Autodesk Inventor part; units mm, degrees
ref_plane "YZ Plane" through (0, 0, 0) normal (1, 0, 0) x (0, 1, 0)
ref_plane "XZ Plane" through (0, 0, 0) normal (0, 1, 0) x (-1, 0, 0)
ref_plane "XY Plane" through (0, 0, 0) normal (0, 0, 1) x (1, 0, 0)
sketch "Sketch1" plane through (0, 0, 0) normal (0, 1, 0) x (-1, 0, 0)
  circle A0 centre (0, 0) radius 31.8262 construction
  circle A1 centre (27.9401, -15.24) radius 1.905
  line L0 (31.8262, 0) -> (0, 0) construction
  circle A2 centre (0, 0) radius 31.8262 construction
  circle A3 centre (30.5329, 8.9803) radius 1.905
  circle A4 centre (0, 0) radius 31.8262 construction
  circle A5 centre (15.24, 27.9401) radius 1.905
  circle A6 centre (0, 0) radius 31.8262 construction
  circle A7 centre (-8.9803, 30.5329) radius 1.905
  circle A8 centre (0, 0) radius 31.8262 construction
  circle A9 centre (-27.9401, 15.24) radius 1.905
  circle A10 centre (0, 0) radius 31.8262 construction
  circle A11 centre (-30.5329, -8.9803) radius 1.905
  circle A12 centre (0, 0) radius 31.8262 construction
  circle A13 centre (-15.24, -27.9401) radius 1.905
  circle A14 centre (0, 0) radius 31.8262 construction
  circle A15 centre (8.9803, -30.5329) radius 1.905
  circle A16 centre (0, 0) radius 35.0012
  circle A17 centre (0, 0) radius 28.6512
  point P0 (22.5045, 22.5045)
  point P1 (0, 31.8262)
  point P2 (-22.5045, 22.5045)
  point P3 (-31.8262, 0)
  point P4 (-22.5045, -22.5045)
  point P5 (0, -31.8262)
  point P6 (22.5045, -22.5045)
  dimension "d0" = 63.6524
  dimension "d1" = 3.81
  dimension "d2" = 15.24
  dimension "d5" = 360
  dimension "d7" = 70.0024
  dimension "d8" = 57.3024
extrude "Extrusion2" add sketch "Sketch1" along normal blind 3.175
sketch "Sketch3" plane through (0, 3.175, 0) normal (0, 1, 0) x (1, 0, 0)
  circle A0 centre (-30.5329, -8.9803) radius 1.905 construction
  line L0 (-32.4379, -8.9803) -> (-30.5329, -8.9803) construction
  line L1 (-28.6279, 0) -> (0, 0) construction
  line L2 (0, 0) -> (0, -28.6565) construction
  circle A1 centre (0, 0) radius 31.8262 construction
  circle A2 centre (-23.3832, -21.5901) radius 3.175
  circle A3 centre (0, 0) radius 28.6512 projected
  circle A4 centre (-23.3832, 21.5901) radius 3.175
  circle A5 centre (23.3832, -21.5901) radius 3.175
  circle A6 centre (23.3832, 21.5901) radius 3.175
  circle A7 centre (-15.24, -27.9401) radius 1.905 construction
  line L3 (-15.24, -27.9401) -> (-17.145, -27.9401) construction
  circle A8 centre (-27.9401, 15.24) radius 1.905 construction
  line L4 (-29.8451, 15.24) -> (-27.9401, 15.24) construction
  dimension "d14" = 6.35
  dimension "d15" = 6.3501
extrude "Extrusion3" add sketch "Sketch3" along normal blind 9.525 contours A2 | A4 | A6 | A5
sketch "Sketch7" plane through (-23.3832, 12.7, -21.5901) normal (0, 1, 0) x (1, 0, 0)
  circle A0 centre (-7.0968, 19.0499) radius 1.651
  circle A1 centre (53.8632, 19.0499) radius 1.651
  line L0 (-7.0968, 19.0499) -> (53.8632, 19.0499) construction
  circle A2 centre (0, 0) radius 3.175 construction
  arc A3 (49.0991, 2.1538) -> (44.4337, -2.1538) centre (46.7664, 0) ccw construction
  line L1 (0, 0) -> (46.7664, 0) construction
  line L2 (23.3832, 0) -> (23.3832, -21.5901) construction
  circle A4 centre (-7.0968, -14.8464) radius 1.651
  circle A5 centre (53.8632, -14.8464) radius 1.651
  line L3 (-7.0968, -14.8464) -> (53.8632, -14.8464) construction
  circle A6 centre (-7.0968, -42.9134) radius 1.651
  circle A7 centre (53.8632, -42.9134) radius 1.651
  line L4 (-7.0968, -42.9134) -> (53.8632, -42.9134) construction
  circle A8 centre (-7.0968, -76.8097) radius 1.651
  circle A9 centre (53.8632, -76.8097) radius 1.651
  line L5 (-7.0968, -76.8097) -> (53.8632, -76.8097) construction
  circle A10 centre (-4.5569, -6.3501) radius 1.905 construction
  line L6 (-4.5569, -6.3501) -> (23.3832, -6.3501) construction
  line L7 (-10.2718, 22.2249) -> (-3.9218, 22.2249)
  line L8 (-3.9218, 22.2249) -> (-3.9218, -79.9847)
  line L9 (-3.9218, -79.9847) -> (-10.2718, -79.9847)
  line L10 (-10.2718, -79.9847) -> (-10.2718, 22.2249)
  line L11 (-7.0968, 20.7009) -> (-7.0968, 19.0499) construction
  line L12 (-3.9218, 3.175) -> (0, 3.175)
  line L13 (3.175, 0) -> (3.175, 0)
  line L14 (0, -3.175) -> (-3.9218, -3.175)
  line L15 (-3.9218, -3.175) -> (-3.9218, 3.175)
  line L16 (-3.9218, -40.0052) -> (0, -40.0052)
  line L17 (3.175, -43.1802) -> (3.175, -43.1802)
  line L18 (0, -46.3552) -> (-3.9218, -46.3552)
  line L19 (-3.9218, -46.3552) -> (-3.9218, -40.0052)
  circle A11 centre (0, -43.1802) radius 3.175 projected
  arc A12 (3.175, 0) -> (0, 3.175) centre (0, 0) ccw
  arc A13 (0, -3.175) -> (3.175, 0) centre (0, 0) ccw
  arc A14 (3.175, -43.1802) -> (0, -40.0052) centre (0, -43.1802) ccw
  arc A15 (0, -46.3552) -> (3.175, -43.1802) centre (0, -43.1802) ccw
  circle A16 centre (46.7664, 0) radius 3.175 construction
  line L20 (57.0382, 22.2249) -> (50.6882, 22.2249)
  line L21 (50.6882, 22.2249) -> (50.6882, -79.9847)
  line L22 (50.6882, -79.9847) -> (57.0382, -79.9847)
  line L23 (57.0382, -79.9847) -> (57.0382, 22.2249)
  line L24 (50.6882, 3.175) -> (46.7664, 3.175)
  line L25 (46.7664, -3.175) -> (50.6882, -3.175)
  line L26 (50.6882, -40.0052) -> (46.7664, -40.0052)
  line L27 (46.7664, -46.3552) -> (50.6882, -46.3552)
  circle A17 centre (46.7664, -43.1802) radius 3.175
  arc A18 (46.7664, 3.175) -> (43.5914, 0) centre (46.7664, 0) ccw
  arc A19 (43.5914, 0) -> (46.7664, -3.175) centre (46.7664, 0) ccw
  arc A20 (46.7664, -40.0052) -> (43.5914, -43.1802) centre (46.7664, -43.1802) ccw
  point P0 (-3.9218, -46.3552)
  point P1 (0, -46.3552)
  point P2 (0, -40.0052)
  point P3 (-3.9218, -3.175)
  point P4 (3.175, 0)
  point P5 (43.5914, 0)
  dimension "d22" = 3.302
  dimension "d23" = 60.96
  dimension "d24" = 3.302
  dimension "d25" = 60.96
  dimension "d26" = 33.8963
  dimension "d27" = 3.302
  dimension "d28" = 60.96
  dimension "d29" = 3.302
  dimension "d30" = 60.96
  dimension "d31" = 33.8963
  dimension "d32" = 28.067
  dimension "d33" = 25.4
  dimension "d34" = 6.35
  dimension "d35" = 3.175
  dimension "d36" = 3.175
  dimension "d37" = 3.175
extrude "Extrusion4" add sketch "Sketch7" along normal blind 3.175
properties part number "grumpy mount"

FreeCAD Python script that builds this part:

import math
import FreeCAD as App
import Part
import Sketcher
Q = App.Units.Quantity

doc = App.newDocument("Part")
params = doc.addObject("Spreadsheet::Sheet", "Params")
for row, (alias, value) in enumerate([
    ("sketch1_diameter", "0.15 in"),
    ("sketch1_diameter2", "2.756 in"),
    ("sketch1_diameter3", "2.256 in"),
    ("pad1_length", "0.125 in"),
    ("sketch2_diameter", "0.25 in"),
    ("pad2_length", "0.375 in"),
    ("sketch3_diameter", "0.13 in"),
    ("sketch3_radius", "0.125 in"),
    ("sketch3_width", "0.25 in"),
    ("sketch3_height", "1.45 in"),
    ("pad3_length", "0.125 in"),
], start=1):
    params.set(f"A{row}", alias)
    params.set(f"B{row}", "=" + value)
    params.setAlias(f"B{row}", alias)

body = doc.addObject("PartDesign::Body", "Body")

sketch1 = body.newObject("Sketcher::SketchObject", "Sketch")
sketch1.AttachmentSupport = (doc.getObject("XZ_Plane"), [""])
sketch1.MapMode = "FlatFace"
sketch1.addGeometry(Part.Circle(App.Vector(0, 0, 0), App.Vector(0, 0, 1), 35), False)
sketch1.addGeometry(Part.Circle(App.Vector(15.2, -27.9, 0), App.Vector(0, 0, 1), 1.9), False)
sketch1.addGeometry(Part.Circle(App.Vector(30.5, -9, 0), App.Vector(0, 0, 1), 1.9), False)
sketch1.addGeometry(Part.Circle(App.Vector(-9, -30.5, 0), App.Vector(0, 0, 1), 1.9), False)
sketch1.addGeometry(Part.Circle(App.Vector(-27.9, -15.2, 0), App.Vector(0, 0, 1), 1.9), False)
sketch1.addGeometry(Part.Circle(App.Vector(27.9, 15.2, 0), App.Vector(0, 0, 1), 1.9), False)
sketch1.addGeometry(Part.Circle(App.Vector(9, 30.5, 0), App.Vector(0, 0, 1), 1.9), False)
sketch1.addGeometry(Part.Circle(App.Vector(0, 0, 0), App.Vector(0, 0, 1), 28.7), False)
sketch1.addGeometry(Part.Circle(App.Vector(-30.5, 9, 0), App.Vector(0, 0, 1), 1.9), False)
sketch1.addGeometry(Part.Circle(App.Vector(-15.2, 27.9, 0), App.Vector(0, 0, 1), 1.9), False)
sketch1.addConstraint(Sketcher.Constraint("Coincident", 0, 3, -1, 1))
sketch1.addConstraint(Sketcher.Constraint("Coincident", 7, 3, -1, 1))
sketch1.addConstraint(Sketcher.Constraint("Equal", 1, 2))
sketch1.addConstraint(Sketcher.Constraint("Equal", 2, 3))
sketch1.addConstraint(Sketcher.Constraint("Equal", 3, 4))
sketch1.addConstraint(Sketcher.Constraint("Equal", 4, 5))
sketch1.addConstraint(Sketcher.Constraint("Equal", 5, 6))
sketch1.addConstraint(Sketcher.Constraint("Equal", 6, 8))
sketch1.addConstraint(Sketcher.Constraint("Equal", 8, 9))
sketch1.addConstraint(Sketcher.Constraint("Symmetric", 4, 3, 5, 3, -1, 1))
sketch1.addConstraint(Sketcher.Constraint("Symmetric", 3, 3, 6, 3, -1, 1))
sketch1.addConstraint(Sketcher.Constraint("Symmetric", 2, 3, 8, 3, -1, 1))
sketch1.addConstraint(Sketcher.Constraint("Symmetric", 1, 3, 9, 3, -1, 1))
sketch1.addConstraint(Sketcher.Constraint("Diameter", 1, Q("0.15 in")))
sketch1.addConstraint(Sketcher.Constraint("Diameter", 0, Q("2.756 in")))
sketch1.addConstraint(Sketcher.Constraint("Diameter", 7, Q("2.256 in")))
sketch1.addConstraint(Sketcher.Constraint("DistanceX", -1, 1, 1, 3, Q("0.6 in")))
sketch1.addConstraint(Sketcher.Constraint("DistanceY", 4, 3, -1, 1, Q("0.6 in")))
sketch1.addConstraint(Sketcher.Constraint("DistanceY", 1, 3, -1, 1, Q("1.1 in")))
sketch1.addConstraint(Sketcher.Constraint("DistanceX", 4, 3, -1, 1, Q("1.1 in")))
sketch1.addConstraint(Sketcher.Constraint("DistanceX", -1, 1, 2, 3, Q("30.533 mm")))
sketch1.addConstraint(Sketcher.Constraint("DistanceY", 2, 3, -1, 1, Q("8.9803 mm")))
sketch1.addConstraint(Sketcher.Constraint("DistanceX", 3, 3, -1, 1, Q("8.9803 mm")))
sketch1.addConstraint(Sketcher.Constraint("DistanceY", 3, 3, -1, 1, Q("30.533 mm")))
sketch1.setExpression("Constraints[13]", "Params.sketch1_diameter")
sketch1.setExpression("Constraints[14]", "Params.sketch1_diameter2")
sketch1.setExpression("Constraints[15]", "Params.sketch1_diameter3")
pad1 = body.newObject("PartDesign::Pad", "Pad")
pad1.Profile = sketch1
pad1.setExpression("Length", "Params.pad1_length")
pad1.Reversed = True

sketch2 = body.newObject("Sketcher::SketchObject", "Sketch001")
sketch2.AttachmentSupport = (doc.getObject("XZ_Plane"), [""])
sketch2.MapMode = "FlatFace"
sketch2.AttachmentOffset = App.Placement(App.Vector(0, 0, -0.125 * 25.4), App.Rotation())
sketch2.addGeometry(Part.Circle(App.Vector(-23.4, 21.6, 0), App.Vector(0, 0, 1), 3.2), False)
sketch2.addGeometry(Part.Circle(App.Vector(-23.4, -21.6, 0), App.Vector(0, 0, 1), 3.2), False)
sketch2.addGeometry(Part.Circle(App.Vector(23.4, -21.6, 0), App.Vector(0, 0, 1), 3.2), False)
sketch2.addGeometry(Part.Circle(App.Vector(23.4, 21.6, 0), App.Vector(0, 0, 1), 3.2), False)
sketch2.addConstraint(Sketcher.Constraint("Equal", 0, 1))
sketch2.addConstraint(Sketcher.Constraint("Equal", 1, 2))
sketch2.addConstraint(Sketcher.Constraint("Equal", 2, 3))
sketch2.addConstraint(Sketcher.Constraint("Symmetric", 0, 3, 2, 3, -1, 1))
sketch2.addConstraint(Sketcher.Constraint("Symmetric", 1, 3, 3, 3, -1, 1))
sketch2.addConstraint(Sketcher.Constraint("Symmetric", 1, 3, 2, 3, -2))
sketch2.addConstraint(Sketcher.Constraint("Diameter", 0, Q("0.25 in")))
sketch2.addConstraint(Sketcher.Constraint("DistanceY", 1, 3, 0, 3, Q("1.7 in")))
sketch2.addConstraint(Sketcher.Constraint("DistanceX", 0, 3, -1, 1, Q("0.9206 in")))
sketch2.setExpression("Constraints[6]", "Params.sketch2_diameter")
pad2 = body.newObject("PartDesign::Pad", "Pad001")
pad2.Profile = sketch2
pad2.setExpression("Length", "Params.pad2_length")
pad2.Reversed = True

sketch3 = body.newObject("Sketcher::SketchObject", "Sketch002")
sketch3.AttachmentSupport = (doc.getObject("XZ_Plane"), [""])
sketch3.MapMode = "FlatFace"
sketch3.AttachmentOffset = App.Placement(App.Vector(0, 0, -0.5 * 25.4), App.Rotation())
sketch3.addGeometry(Part.LineSegment(App.Vector(-27.3, -43.8, 0), App.Vector(-33.7, -43.8, 0)), False)
sketch3.addGeometry(Part.LineSegment(App.Vector(-33.7, -43.8, 0), App.Vector(-33.7, 58.4, 0)), False)
sketch3.addGeometry(Part.LineSegment(App.Vector(-33.7, 58.4, 0), App.Vector(-27.3, 58.4, 0)), False)
sketch3.addGeometry(Part.LineSegment(App.Vector(-27.3, 58.4, 0), App.Vector(-27.3, 24.8, 0)), False)
sketch3.addGeometry(Part.LineSegment(App.Vector(-27.3, 24.8, 0), App.Vector(-23.4, 24.8, 0)), False)
sketch3.addGeometry(Part.ArcOfCircle(Part.Circle(App.Vector(-23.4, 21.6, 0), App.Vector(0, 0, 1), 3.2), math.radians(-90), math.radians(90)), False)
sketch3.addGeometry(Part.LineSegment(App.Vector(-23.4, 18.4, 0), App.Vector(-27.3, 18.4, 0)), False)
sketch3.addGeometry(Part.LineSegment(App.Vector(-27.3, 18.4, 0), App.Vector(-27.3, -18.4, 0)), False)
sketch3.addGeometry(Part.LineSegment(App.Vector(-27.3, -18.4, 0), App.Vector(-23.4, -18.4, 0)), False)
sketch3.addGeometry(Part.ArcOfCircle(Part.Circle(App.Vector(-23.4, -21.6, 0), App.Vector(0, 0, 1), 3.2), math.radians(-90), math.radians(90)), False)
sketch3.addGeometry(Part.LineSegment(App.Vector(-23.4, -24.8, 0), App.Vector(-27.3, -24.8, 0)), False)
sketch3.addGeometry(Part.LineSegment(App.Vector(-27.3, -24.8, 0), App.Vector(-27.3, -43.8, 0)), False)
sketch3.addGeometry(Part.Circle(App.Vector(-30.5, 55.2, 0), App.Vector(0, 0, 1), 1.7), False)
sketch3.addGeometry(Part.Circle(App.Vector(-30.5, 21.3, 0), App.Vector(0, 0, 1), 1.7), False)
sketch3.addGeometry(Part.Circle(App.Vector(-30.5, -6.7, 0), App.Vector(0, 0, 1), 1.7), False)
sketch3.addGeometry(Part.Circle(App.Vector(-30.5, -40.6, 0), App.Vector(0, 0, 1), 1.7), False)
sketch3.addGeometry(Part.LineSegment(App.Vector(33.7, 58.4, 0), App.Vector(33.7, -43.8, 0)), False)
sketch3.addGeometry(Part.LineSegment(App.Vector(33.7, -43.8, 0), App.Vector(27.3, -43.8, 0)), False)
sketch3.addGeometry(Part.LineSegment(App.Vector(27.3, -43.8, 0), App.Vector(27.3, -24.8, 0)), False)
sketch3.addGeometry(Part.LineSegment(App.Vector(27.3, -24.8, 0), App.Vector(23.4, -24.8, 0)), False)
sketch3.addGeometry(Part.ArcOfCircle(Part.Circle(App.Vector(23.4, -21.6, 0), App.Vector(0, 0, 1), 3.2), math.radians(90), math.radians(270)), False)
sketch3.addGeometry(Part.LineSegment(App.Vector(23.4, -18.4, 0), App.Vector(27.3, -18.4, 0)), False)
sketch3.addGeometry(Part.LineSegment(App.Vector(27.3, -18.4, 0), App.Vector(27.3, 18.4, 0)), False)
sketch3.addGeometry(Part.LineSegment(App.Vector(27.3, 18.4, 0), App.Vector(23.4, 18.4, 0)), False)
sketch3.addGeometry(Part.ArcOfCircle(Part.Circle(App.Vector(23.4, 21.6, 0), App.Vector(0, 0, 1), 3.2), math.radians(90), math.radians(270)), False)
sketch3.addGeometry(Part.LineSegment(App.Vector(23.4, 24.8, 0), App.Vector(27.3, 24.8, 0)), False)
sketch3.addGeometry(Part.LineSegment(App.Vector(27.3, 24.8, 0), App.Vector(27.3, 58.4, 0)), False)
sketch3.addGeometry(Part.LineSegment(App.Vector(27.3, 58.4, 0), App.Vector(33.7, 58.4, 0)), False)
sketch3.addGeometry(Part.Circle(App.Vector(30.5, 55.2, 0), App.Vector(0, 0, 1), 1.7), False)
sketch3.addGeometry(Part.Circle(App.Vector(30.5, 21.3, 0), App.Vector(0, 0, 1), 1.7), False)
sketch3.addGeometry(Part.Circle(App.Vector(30.5, -6.7, 0), App.Vector(0, 0, 1), 1.7), False)
sketch3.addGeometry(Part.Circle(App.Vector(30.5, -40.6, 0), App.Vector(0, 0, 1), 1.7), False)
sketch3.addConstraint(Sketcher.Constraint("Coincident", 0, 2, 1, 1))
sketch3.addConstraint(Sketcher.Constraint("Coincident", 1, 2, 2, 1))
sketch3.addConstraint(Sketcher.Constraint("Coincident", 2, 2, 3, 1))
sketch3.addConstraint(Sketcher.Constraint("Coincident", 3, 2, 4, 1))
sketch3.addConstraint(Sketcher.Constraint("Tangent", 4, 2, 5, 2))
sketch3.addConstraint(Sketcher.Constraint("Tangent", 5, 1, 6, 1))
sketch3.addConstraint(Sketcher.Constraint("Coincident", 6, 2, 7, 1))
sketch3.addConstraint(Sketcher.Constraint("Coincident", 7, 2, 8, 1))
sketch3.addConstraint(Sketcher.Constraint("Tangent", 8, 2, 9, 2))
sketch3.addConstraint(Sketcher.Constraint("Tangent", 9, 1, 10, 1))
sketch3.addConstraint(Sketcher.Constraint("Coincident", 10, 2, 11, 1))
sketch3.addConstraint(Sketcher.Constraint("Coincident", 11, 2, 0, 1))
sketch3.addConstraint(Sketcher.Constraint("Coincident", 16, 2, 17, 1))
sketch3.addConstraint(Sketcher.Constraint("Coincident", 17, 2, 18, 1))
sketch3.addConstraint(Sketcher.Constraint("Coincident", 18, 2, 19, 1))
sketch3.addConstraint(Sketcher.Constraint("Tangent", 19, 2, 20, 2))
sketch3.addConstraint(Sketcher.Constraint("Tangent", 20, 1, 21, 1))
sketch3.addConstraint(Sketcher.Constraint("Coincident", 21, 2, 22, 1))
sketch3.addConstraint(Sketcher.Constraint("Coincident", 22, 2, 23, 1))
sketch3.addConstraint(Sketcher.Constraint("Tangent", 23, 2, 24, 2))
sketch3.addConstraint(Sketcher.Constraint("Tangent", 24, 1, 25, 1))
sketch3.addConstraint(Sketcher.Constraint("Coincident", 25, 2, 26, 1))
sketch3.addConstraint(Sketcher.Constraint("Coincident", 26, 2, 27, 1))
sketch3.addConstraint(Sketcher.Constraint("Coincident", 27, 2, 16, 1))
sketch3.addConstraint(Sketcher.Constraint("Horizontal", 0))
sketch3.addConstraint(Sketcher.Constraint("Vertical", 1))
sketch3.addConstraint(Sketcher.Constraint("Horizontal", 2))
sketch3.addConstraint(Sketcher.Constraint("Vertical", 3))
sketch3.addConstraint(Sketcher.Constraint("Horizontal", 4))
sketch3.addConstraint(Sketcher.Constraint("Horizontal", 6))
sketch3.addConstraint(Sketcher.Constraint("Vertical", 7))
sketch3.addConstraint(Sketcher.Constraint("Horizontal", 8))
sketch3.addConstraint(Sketcher.Constraint("Horizontal", 10))
sketch3.addConstraint(Sketcher.Constraint("Vertical", 11))
sketch3.addConstraint(Sketcher.Constraint("Vertical", 16))
sketch3.addConstraint(Sketcher.Constraint("Horizontal", 17))
sketch3.addConstraint(Sketcher.Constraint("Vertical", 18))
sketch3.addConstraint(Sketcher.Constraint("Horizontal", 19))
sketch3.addConstraint(Sketcher.Constraint("Horizontal", 21))
sketch3.addConstraint(Sketcher.Constraint("Vertical", 22))
sketch3.addConstraint(Sketcher.Constraint("Horizontal", 23))
sketch3.addConstraint(Sketcher.Constraint("Horizontal", 25))
sketch3.addConstraint(Sketcher.Constraint("Vertical", 26))
sketch3.addConstraint(Sketcher.Constraint("Horizontal", 27))
sketch3.addConstraint(Sketcher.Constraint("Equal", 5, 9))
sketch3.addConstraint(Sketcher.Constraint("Equal", 12, 13))
sketch3.addConstraint(Sketcher.Constraint("Equal", 13, 14))
sketch3.addConstraint(Sketcher.Constraint("Equal", 14, 15))
sketch3.addConstraint(Sketcher.Constraint("Equal", 9, 20))
sketch3.addConstraint(Sketcher.Constraint("Equal", 20, 24))
sketch3.addConstraint(Sketcher.Constraint("Equal", 15, 28))
sketch3.addConstraint(Sketcher.Constraint("Equal", 28, 29))
sketch3.addConstraint(Sketcher.Constraint("Equal", 29, 30))
sketch3.addConstraint(Sketcher.Constraint("Equal", 30, 31))
sketch3.addConstraint(Sketcher.Constraint("Symmetric", 5, 3, 20, 3, -1, 1))
sketch3.addConstraint(Sketcher.Constraint("Symmetric", 9, 3, 24, 3, -1, 1))
sketch3.addConstraint(Sketcher.Constraint("Symmetric", 9, 3, 20, 3, -2))
sketch3.addConstraint(Sketcher.Constraint("Symmetric", 12, 3, 28, 3, -2))
sketch3.addConstraint(Sketcher.Constraint("Symmetric", 13, 3, 29, 3, -2))
sketch3.addConstraint(Sketcher.Constraint("Symmetric", 14, 3, 30, 3, -2))
sketch3.addConstraint(Sketcher.Constraint("Symmetric", 15, 3, 31, 3, -2))
sketch3.addConstraint(Sketcher.Constraint("Symmetric", 0, 2, 16, 2, -2))
sketch3.addConstraint(Sketcher.Constraint("Symmetric", 2, 2, 26, 2, -2))
sketch3.addConstraint(Sketcher.Constraint("Vertical", 12, 3, 13, 3))
sketch3.addConstraint(Sketcher.Constraint("Vertical", 13, 3, 14, 3))
sketch3.addConstraint(Sketcher.Constraint("Vertical", 14, 3, 15, 3))
sketch3.addConstraint(Sketcher.Constraint("Vertical", 3, 2, 6, 2))
sketch3.addConstraint(Sketcher.Constraint("Vertical", 7, 2, 10, 2))
sketch3.addConstraint(Sketcher.Constraint("Vertical", 18, 2, 21, 2))
sketch3.addConstraint(Sketcher.Constraint("Vertical", 22, 2, 25, 2))
sketch3.addConstraint(Sketcher.Constraint("Diameter", 12, Q("0.13 in")))
sketch3.addConstraint(Sketcher.Constraint("Radius", 5, Q("0.125 in")))
sketch3.addConstraint(Sketcher.Constraint("DistanceY", 0, 2, 7, 2, Q("1 in")))
sketch3.addConstraint(Sketcher.Constraint("DistanceX", 0, 2, 0, 1, Q("0.25 in")))
sketch3.addConstraint(Sketcher.Constraint("DistanceX", 12, 3, 28, 3, Q("2.4 in")))
sketch3.addConstraint(Sketcher.Constraint("DistanceX", 11, 2, 16, 2, Q("2.4 in")))
sketch3.addConstraint(Sketcher.Constraint("DistanceY", 14, 3, 13, 3, Q("1.105 in")))
sketch3.addConstraint(Sketcher.Constraint("DistanceY", 0, 2, 15, 3, Q("0.125 in")))
sketch3.addConstraint(Sketcher.Constraint("DistanceY", 12, 3, 1, 2, Q("0.125 in")))
sketch3.addConstraint(Sketcher.Constraint("DistanceY", 7, 2, 7, 1, Q("1.45 in")))
sketch3.addConstraint(Sketcher.Constraint("DistanceY", 13, 3, 12, 3, Q("1.3345 in")))
sketch3.addConstraint(Sketcher.Constraint("DistanceY", 15, 3, 14, 3, Q("1.3345 in")))
sketch3.addConstraint(Sketcher.Constraint("DistanceX", 4, 1, 4, 2, Q("0.1544 in")))
sketch3.setExpression("Constraints[70]", "Params.sketch3_diameter")
sketch3.setExpression("Constraints[71]", "Params.sketch3_radius")
sketch3.setExpression("Constraints[73]", "Params.sketch3_width")
sketch3.setExpression("Constraints[79]", "Params.sketch3_height")
pad3 = body.newObject("PartDesign::Pad", "Pad002")
pad3.Profile = sketch3
pad3.setExpression("Length", "Params.pad3_length")
pad3.Reversed = True

doc.recompute()
